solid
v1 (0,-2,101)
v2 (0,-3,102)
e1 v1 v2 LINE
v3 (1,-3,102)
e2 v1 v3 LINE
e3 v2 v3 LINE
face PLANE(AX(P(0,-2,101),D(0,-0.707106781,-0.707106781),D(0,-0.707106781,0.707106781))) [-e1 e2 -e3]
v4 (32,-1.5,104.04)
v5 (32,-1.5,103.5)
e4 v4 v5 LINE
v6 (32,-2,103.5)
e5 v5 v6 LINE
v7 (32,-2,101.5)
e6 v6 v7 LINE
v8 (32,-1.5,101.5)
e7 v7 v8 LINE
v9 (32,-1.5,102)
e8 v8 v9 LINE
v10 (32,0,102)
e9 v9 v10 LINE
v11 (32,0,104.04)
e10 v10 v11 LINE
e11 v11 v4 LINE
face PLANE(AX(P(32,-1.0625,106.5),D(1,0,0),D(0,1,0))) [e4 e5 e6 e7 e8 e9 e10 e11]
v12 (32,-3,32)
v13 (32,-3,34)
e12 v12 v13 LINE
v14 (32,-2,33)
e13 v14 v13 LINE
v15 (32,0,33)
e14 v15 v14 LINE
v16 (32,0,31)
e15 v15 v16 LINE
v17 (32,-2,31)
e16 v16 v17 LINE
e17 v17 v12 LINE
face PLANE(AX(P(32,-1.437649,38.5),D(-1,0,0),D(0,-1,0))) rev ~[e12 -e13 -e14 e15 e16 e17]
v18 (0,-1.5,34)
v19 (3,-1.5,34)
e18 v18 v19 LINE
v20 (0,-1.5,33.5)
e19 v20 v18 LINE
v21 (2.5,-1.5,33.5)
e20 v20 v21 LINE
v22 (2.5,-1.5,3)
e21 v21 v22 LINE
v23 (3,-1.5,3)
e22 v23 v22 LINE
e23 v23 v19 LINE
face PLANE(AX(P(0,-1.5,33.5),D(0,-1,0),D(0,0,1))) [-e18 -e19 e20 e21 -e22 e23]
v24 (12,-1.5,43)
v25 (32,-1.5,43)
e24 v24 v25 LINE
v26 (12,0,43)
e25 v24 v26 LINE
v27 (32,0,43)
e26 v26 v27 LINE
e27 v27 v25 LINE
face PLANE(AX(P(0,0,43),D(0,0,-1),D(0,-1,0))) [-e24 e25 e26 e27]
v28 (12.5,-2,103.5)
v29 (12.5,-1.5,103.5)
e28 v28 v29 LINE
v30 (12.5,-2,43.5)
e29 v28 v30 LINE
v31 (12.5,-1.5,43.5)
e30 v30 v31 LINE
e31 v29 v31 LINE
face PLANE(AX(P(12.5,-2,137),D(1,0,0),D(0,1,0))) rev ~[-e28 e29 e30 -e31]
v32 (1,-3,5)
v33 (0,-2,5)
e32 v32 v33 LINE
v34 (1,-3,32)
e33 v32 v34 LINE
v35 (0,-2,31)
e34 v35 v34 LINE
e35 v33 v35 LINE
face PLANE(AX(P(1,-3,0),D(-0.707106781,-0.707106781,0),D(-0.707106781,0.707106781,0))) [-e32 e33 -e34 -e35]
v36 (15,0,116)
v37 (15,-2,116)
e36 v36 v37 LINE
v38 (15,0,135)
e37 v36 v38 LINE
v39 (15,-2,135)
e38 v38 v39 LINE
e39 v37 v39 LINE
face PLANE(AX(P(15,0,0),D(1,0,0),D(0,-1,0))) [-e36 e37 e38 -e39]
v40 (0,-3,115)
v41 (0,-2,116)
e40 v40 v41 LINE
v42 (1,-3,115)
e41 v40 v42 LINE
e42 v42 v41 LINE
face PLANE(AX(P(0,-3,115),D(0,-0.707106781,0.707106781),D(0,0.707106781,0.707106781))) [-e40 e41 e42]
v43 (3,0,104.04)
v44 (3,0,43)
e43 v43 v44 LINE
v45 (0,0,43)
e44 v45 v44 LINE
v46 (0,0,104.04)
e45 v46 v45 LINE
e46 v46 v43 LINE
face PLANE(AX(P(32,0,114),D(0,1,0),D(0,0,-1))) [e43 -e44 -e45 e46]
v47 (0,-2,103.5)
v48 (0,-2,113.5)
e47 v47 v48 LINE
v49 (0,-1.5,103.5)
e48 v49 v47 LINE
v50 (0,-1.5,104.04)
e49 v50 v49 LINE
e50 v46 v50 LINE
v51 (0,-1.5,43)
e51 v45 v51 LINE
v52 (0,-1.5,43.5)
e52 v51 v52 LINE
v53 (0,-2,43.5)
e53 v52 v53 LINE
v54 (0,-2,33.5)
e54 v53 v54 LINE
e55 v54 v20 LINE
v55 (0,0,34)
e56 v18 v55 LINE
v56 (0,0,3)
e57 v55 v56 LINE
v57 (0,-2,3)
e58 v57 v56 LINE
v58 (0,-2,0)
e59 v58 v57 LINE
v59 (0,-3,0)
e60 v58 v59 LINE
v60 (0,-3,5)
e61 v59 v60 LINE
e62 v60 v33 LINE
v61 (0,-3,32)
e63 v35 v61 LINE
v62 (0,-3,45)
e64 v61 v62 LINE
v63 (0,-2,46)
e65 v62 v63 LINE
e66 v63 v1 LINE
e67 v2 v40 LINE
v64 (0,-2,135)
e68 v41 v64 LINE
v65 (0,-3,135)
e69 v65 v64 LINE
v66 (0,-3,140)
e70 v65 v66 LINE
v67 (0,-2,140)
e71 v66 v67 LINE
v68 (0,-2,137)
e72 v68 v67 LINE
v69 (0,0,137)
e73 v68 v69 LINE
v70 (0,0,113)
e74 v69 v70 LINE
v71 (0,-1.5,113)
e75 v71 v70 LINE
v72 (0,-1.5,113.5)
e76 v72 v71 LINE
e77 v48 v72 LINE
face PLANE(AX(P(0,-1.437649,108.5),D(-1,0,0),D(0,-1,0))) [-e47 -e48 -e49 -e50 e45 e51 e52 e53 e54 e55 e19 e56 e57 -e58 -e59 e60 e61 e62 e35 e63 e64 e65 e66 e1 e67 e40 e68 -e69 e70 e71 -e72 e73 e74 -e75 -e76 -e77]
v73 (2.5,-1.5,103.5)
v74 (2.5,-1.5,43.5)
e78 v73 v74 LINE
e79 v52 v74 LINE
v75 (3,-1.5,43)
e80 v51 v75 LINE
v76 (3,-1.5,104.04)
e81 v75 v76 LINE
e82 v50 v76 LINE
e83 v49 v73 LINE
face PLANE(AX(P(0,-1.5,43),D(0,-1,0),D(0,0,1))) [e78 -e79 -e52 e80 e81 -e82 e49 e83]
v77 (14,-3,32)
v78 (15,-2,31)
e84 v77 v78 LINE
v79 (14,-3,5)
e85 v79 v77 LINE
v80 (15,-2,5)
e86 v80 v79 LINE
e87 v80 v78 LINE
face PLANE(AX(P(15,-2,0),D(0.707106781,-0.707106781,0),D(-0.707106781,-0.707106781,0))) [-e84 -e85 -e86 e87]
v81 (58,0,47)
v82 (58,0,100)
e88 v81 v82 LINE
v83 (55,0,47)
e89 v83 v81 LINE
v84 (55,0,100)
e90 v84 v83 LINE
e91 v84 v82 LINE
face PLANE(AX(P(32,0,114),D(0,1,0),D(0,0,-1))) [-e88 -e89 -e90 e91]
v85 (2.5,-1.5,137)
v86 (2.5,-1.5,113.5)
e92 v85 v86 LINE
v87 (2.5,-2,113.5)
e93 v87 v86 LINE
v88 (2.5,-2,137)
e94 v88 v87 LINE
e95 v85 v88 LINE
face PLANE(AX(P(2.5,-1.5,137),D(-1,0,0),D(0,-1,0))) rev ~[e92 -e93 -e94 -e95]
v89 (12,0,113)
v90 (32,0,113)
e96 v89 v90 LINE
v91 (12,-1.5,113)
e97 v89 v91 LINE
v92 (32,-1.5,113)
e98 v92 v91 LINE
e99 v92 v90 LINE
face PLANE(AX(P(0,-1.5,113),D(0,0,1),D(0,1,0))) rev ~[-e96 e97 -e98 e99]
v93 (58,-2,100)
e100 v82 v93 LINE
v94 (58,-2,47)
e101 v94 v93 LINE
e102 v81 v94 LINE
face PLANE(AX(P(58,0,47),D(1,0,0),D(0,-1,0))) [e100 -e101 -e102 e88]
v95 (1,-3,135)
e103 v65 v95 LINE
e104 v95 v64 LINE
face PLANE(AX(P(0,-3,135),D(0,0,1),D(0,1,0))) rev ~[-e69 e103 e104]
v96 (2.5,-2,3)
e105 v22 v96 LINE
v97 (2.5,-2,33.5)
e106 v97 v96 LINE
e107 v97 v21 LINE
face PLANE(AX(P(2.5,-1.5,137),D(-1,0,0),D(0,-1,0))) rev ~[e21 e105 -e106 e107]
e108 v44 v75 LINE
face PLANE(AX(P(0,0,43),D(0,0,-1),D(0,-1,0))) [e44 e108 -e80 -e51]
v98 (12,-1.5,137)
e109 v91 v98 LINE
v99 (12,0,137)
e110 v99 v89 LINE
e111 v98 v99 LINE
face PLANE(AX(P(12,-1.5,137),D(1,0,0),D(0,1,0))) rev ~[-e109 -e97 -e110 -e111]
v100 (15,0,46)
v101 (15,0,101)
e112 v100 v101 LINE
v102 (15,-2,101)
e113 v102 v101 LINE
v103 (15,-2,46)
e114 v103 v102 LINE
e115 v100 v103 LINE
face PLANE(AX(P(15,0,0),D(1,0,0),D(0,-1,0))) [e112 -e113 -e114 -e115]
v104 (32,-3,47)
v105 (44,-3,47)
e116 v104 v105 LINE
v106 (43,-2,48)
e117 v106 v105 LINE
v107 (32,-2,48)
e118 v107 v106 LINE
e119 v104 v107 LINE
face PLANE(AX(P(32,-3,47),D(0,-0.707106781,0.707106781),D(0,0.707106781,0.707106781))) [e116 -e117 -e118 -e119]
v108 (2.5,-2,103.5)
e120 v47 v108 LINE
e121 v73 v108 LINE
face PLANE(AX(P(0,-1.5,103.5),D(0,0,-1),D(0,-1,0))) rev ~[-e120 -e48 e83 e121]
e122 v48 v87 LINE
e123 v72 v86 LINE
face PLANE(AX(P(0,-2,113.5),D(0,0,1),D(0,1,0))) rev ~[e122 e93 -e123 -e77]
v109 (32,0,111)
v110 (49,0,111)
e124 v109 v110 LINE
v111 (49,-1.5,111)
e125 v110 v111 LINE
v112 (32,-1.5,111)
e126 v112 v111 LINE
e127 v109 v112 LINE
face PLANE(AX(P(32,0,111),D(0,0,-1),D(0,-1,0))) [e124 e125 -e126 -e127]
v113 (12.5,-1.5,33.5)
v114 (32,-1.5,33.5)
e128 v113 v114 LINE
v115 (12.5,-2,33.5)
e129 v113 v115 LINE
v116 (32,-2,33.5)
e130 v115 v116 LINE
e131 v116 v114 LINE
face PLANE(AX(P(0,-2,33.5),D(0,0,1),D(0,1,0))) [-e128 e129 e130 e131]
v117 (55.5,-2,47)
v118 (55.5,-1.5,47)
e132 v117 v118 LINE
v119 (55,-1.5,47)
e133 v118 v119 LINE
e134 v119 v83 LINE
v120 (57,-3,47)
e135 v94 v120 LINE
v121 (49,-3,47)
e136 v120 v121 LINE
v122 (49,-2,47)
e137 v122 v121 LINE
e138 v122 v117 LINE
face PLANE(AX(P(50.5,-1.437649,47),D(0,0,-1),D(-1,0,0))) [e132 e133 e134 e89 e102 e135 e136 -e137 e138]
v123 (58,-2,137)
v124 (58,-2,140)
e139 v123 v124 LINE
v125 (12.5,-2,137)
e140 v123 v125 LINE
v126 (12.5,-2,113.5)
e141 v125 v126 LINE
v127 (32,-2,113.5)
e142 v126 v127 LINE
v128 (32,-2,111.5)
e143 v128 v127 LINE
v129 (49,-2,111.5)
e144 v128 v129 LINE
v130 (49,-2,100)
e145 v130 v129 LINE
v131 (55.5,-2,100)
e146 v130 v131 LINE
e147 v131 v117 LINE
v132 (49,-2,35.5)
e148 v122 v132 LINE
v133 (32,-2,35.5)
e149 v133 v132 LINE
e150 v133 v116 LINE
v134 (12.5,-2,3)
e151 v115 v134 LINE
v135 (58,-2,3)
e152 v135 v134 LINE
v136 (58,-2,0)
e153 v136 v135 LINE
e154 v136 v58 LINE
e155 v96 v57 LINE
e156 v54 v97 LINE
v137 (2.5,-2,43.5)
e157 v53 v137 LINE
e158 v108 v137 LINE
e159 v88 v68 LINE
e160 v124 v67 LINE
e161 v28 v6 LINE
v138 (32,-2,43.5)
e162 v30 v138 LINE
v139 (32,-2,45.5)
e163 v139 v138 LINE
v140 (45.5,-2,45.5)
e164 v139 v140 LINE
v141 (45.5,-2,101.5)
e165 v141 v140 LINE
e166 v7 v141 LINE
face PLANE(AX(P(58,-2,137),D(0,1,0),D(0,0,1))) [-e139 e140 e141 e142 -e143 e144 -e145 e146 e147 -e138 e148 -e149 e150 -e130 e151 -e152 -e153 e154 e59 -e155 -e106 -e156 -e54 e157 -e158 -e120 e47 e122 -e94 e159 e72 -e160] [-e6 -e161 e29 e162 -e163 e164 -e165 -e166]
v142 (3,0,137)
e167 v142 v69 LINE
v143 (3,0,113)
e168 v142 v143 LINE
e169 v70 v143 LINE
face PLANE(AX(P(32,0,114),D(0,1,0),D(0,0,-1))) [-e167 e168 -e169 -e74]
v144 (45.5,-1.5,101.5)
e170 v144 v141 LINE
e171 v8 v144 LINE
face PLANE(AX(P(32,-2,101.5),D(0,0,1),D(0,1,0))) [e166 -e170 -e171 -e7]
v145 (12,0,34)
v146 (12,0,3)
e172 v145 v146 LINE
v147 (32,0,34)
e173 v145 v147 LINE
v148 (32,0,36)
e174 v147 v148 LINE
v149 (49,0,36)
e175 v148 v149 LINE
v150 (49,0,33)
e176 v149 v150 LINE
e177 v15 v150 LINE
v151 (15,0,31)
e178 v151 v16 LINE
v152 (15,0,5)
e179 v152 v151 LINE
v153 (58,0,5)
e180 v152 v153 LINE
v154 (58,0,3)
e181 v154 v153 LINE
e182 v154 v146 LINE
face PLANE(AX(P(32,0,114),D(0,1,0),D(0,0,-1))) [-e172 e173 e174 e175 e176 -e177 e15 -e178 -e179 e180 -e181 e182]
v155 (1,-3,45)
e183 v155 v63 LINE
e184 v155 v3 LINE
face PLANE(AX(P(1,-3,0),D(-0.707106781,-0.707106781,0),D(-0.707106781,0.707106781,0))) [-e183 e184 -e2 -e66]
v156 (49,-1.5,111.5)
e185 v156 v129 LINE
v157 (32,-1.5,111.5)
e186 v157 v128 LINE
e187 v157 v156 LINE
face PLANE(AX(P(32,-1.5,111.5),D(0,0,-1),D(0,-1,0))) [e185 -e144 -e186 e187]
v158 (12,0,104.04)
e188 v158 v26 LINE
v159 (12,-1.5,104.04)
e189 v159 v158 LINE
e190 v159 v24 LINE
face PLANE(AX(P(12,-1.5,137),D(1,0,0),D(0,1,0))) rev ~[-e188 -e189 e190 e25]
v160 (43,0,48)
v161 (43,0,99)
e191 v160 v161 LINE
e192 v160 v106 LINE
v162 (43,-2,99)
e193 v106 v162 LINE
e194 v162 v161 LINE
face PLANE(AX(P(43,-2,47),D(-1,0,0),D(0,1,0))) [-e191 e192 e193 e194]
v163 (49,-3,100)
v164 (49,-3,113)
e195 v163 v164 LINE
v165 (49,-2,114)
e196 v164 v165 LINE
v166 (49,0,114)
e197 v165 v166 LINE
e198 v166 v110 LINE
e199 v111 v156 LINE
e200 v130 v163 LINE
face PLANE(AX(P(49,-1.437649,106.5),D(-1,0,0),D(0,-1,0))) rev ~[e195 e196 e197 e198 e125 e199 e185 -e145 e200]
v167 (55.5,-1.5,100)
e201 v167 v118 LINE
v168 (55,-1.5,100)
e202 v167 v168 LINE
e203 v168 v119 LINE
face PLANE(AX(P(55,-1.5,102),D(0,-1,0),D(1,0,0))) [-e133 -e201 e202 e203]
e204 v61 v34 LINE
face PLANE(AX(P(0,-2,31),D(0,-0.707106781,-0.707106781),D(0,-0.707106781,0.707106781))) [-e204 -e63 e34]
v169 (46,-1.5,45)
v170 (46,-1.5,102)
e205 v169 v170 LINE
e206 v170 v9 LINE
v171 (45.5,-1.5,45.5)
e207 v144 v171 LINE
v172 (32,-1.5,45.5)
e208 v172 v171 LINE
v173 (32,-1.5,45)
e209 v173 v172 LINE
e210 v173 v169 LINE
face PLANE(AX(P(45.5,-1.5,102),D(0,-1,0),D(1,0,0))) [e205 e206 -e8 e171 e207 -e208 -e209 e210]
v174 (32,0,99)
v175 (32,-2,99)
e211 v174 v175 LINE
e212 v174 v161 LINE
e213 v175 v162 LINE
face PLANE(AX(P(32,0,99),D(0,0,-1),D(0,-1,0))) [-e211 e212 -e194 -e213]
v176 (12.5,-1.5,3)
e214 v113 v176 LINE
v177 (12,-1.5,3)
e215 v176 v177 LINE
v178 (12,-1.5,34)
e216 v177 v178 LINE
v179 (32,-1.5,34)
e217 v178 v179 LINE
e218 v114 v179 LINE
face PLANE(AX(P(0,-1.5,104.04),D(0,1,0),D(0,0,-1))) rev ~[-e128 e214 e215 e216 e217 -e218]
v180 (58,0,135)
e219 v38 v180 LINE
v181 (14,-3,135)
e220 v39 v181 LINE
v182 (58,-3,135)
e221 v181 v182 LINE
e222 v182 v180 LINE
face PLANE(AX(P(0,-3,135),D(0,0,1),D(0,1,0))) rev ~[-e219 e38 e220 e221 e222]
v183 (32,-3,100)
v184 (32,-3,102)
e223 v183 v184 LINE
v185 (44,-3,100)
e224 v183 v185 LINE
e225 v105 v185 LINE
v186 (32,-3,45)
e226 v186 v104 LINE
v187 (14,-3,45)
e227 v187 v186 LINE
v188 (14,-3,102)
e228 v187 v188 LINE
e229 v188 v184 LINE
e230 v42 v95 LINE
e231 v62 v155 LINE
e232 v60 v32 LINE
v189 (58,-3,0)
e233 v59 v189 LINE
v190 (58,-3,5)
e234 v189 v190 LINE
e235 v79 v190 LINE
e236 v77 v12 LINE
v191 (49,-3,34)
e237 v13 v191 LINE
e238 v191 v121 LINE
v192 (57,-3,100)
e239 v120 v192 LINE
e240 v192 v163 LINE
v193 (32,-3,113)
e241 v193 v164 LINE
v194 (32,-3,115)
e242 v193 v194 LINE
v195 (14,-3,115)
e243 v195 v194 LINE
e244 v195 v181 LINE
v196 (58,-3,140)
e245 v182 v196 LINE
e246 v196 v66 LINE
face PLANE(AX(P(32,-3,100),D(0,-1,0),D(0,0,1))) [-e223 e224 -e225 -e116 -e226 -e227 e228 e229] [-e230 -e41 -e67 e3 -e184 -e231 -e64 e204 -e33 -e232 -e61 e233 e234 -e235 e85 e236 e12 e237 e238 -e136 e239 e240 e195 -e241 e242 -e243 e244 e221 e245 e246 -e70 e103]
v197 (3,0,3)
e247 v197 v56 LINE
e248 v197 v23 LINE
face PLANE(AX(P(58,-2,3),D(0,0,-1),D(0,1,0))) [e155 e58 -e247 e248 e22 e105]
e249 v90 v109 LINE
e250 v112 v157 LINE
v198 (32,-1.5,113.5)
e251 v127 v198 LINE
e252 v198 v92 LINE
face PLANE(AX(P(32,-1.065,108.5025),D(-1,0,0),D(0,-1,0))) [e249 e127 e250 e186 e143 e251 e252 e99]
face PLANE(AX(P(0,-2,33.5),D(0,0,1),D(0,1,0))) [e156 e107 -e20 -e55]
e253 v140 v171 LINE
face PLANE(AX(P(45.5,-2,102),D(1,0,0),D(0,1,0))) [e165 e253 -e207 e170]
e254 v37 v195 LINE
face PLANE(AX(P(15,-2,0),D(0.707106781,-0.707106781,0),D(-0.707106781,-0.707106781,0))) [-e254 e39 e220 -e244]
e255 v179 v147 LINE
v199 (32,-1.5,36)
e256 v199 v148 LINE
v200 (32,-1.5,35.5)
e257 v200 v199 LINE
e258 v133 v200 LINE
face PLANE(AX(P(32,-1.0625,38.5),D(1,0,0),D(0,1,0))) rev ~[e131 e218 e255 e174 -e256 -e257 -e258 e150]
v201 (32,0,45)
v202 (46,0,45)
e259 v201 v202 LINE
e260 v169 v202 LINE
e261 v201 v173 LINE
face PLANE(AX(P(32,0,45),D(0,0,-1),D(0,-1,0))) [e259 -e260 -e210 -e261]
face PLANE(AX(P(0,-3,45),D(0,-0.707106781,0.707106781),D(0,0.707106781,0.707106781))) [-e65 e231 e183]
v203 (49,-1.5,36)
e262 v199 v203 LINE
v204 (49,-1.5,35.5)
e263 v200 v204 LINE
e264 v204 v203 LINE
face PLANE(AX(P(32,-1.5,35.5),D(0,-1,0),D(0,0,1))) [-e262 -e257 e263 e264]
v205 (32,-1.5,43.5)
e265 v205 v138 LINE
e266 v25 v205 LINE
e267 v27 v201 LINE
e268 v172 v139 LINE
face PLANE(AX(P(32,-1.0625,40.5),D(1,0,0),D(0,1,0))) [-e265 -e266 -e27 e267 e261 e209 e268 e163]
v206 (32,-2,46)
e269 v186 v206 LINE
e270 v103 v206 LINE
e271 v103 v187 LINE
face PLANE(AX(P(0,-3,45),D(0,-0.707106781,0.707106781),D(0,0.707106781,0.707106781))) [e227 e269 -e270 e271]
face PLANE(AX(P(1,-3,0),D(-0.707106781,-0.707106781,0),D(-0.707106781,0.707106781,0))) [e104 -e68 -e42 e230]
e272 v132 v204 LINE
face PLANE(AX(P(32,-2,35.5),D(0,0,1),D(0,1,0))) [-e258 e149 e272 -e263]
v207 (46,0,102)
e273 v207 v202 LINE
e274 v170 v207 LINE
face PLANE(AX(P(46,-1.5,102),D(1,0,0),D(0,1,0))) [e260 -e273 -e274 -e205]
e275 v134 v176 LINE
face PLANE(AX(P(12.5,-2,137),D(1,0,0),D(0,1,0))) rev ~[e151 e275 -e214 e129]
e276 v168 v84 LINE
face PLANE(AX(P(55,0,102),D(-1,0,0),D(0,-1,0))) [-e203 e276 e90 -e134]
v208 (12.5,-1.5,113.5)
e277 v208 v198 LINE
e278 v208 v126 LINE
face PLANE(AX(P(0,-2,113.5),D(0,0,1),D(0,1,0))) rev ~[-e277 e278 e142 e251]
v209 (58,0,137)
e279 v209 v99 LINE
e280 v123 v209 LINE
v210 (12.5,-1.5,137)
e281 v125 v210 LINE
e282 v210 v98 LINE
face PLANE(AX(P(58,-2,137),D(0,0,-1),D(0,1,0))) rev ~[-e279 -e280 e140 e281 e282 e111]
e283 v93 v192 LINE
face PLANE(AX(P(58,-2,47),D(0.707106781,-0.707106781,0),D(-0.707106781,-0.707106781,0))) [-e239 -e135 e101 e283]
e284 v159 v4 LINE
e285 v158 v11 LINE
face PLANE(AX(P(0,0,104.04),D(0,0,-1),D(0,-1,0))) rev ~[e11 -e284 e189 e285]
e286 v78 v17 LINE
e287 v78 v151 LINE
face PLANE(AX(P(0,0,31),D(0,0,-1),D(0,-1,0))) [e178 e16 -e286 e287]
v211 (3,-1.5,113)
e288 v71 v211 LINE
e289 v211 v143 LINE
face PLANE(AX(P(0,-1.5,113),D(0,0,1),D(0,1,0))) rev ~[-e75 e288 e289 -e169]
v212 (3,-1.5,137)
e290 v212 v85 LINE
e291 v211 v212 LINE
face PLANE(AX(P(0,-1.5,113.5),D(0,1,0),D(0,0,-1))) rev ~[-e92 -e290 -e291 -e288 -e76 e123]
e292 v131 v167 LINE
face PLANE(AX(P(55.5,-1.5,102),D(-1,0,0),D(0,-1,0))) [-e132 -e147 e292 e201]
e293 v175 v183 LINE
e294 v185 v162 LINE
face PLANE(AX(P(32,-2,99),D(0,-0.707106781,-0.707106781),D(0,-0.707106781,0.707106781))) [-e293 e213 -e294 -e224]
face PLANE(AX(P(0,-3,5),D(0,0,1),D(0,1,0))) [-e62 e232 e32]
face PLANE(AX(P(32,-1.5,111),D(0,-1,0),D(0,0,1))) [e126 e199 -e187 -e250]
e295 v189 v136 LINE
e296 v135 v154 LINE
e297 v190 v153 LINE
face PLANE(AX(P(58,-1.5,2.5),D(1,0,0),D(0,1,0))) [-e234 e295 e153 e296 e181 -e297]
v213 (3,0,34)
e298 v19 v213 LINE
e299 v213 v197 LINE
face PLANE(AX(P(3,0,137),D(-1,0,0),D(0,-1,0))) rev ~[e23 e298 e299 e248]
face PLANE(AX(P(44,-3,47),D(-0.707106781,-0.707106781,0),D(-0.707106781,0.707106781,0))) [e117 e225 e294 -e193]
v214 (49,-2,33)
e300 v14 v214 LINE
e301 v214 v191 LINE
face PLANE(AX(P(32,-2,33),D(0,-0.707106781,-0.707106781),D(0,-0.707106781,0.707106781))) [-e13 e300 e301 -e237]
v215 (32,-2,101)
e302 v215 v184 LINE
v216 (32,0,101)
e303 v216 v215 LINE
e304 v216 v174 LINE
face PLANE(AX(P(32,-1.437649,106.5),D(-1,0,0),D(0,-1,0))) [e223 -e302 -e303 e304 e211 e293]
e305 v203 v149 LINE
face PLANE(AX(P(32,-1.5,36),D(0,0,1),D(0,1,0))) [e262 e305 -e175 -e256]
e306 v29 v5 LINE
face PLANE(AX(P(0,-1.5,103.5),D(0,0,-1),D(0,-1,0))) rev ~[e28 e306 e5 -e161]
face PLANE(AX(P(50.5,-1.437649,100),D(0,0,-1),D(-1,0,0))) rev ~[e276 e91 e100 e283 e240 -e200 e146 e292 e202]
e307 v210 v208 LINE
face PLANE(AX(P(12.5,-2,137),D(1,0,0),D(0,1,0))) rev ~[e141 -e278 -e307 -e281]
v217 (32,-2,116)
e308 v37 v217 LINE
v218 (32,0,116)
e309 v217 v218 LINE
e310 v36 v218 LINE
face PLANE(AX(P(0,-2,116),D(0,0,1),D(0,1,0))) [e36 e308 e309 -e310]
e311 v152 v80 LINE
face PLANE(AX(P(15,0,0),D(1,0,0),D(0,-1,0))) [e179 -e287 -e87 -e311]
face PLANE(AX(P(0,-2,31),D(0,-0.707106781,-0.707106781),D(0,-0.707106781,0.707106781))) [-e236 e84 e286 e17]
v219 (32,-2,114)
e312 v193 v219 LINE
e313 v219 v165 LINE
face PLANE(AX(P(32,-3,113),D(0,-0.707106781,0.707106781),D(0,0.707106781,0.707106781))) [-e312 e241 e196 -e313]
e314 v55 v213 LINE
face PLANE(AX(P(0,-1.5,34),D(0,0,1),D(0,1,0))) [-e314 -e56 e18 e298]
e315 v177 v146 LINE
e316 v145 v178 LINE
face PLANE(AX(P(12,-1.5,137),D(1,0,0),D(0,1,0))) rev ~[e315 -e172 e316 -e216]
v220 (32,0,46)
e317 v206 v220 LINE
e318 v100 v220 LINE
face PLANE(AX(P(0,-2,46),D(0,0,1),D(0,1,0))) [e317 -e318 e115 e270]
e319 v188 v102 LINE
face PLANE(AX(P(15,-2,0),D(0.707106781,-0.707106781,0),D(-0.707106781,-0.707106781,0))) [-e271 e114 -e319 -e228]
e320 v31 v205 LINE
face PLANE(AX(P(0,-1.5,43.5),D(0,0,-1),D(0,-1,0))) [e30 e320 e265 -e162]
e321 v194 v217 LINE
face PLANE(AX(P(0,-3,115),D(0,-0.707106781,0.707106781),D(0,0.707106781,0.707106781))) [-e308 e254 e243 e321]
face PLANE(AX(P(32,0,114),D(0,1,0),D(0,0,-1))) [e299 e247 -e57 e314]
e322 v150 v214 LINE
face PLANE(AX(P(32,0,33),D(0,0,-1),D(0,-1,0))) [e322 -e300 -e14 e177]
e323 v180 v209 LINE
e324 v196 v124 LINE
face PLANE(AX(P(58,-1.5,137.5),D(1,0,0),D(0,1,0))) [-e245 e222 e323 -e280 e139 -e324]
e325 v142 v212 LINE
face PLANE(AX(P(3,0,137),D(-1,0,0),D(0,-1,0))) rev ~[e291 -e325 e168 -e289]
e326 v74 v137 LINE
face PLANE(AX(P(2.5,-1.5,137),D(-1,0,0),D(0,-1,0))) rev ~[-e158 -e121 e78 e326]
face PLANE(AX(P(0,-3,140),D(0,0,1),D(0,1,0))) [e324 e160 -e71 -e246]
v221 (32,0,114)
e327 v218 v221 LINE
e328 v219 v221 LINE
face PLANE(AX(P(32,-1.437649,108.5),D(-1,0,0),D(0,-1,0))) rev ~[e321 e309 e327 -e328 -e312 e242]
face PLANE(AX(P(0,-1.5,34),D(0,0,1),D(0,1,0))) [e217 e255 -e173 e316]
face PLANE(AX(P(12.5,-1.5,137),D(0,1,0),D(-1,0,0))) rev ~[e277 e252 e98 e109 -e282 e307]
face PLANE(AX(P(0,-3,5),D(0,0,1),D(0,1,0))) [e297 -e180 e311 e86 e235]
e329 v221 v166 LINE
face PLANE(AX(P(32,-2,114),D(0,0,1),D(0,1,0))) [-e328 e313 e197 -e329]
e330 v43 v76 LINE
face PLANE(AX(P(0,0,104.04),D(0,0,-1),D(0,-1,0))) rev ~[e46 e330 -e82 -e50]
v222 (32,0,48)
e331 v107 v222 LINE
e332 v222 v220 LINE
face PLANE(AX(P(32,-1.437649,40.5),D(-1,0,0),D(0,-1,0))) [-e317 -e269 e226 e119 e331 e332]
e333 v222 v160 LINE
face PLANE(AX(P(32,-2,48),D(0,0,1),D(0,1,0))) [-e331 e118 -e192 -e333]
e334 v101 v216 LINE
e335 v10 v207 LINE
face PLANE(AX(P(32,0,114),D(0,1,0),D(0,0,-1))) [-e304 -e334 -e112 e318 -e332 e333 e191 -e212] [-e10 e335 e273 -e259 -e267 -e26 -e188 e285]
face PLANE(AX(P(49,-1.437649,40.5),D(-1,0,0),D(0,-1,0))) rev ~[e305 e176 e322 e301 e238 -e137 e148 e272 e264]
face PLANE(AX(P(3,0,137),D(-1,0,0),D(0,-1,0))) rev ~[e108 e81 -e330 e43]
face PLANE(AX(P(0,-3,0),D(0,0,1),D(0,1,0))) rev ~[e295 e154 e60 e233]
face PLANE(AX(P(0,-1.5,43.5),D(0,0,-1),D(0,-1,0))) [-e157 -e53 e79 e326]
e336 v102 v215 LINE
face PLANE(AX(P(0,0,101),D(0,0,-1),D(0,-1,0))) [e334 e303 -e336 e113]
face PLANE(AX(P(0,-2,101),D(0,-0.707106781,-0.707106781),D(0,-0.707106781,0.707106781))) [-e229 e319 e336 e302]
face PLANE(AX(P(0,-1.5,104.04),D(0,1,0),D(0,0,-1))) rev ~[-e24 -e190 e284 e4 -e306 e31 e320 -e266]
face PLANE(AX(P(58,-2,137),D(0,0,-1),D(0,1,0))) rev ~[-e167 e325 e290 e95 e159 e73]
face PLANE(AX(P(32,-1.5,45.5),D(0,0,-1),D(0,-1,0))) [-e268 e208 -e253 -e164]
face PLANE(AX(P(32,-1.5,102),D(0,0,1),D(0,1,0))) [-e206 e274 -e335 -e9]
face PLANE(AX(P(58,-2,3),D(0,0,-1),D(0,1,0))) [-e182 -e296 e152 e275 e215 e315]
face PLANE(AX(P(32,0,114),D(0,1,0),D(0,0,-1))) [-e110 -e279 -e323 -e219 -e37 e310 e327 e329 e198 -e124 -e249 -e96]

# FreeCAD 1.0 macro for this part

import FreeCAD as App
import Part
import Sketcher

V = App.Vector

doc = App.newDocument("Part")
body = doc.addObject("PartDesign::Body", "Body")

# Sketch on XY plane
sketch1 = body.newObject("Sketcher::SketchObject", "Sketch")
sketch1.AttachmentSupport = (doc.getObject("XY_Plane"), [""])
sketch1.MapMode = "FlatFace"
sketch1.addGeometry([
    Part.LineSegment(V(15, 0, 0), V(0, 0, 0)),  # 0
    Part.LineSegment(V(0, 0, 0), V(0, -2, 0)),  # 1
    Part.LineSegment(V(0, -2, 0), V(1, -3, 0)),  # 2
    Part.LineSegment(V(1, -3, 0), V(14, -3, 0)),  # 3
    Part.LineSegment(V(14, -3, 0), V(15, -2, 0)),  # 4
    Part.LineSegment(V(15, -2, 0), V(15, 0, 0)),  # 5
], False)
sketch1.addConstraint([
    Sketcher.Constraint("Coincident", 0, 2, 1, 1),
    Sketcher.Constraint("Coincident", 1, 2, 2, 1),
    Sketcher.Constraint("Coincident", 2, 2, 3, 1),
    Sketcher.Constraint("Coincident", 3, 2, 4, 1),
    Sketcher.Constraint("Coincident", 4, 2, 5, 1),
    Sketcher.Constraint("Coincident", 5, 2, 0, 1),
    Sketcher.Constraint("Horizontal", 0),
    Sketcher.Constraint("Vertical", 1),
    Sketcher.Constraint("Horizontal", 3),
    Sketcher.Constraint("Vertical", 5),
    Sketcher.Constraint("Coincident", 0, 2, -1, 1),
    Sketcher.Constraint("Perpendicular", 2, 4),
    Sketcher.Constraint("Horizontal", 1, 2, 4, 2),
    Sketcher.Constraint("Equal", 2, 4),
    Sketcher.Constraint("DistanceX", 0, 2, 0, 1, 15.0),
    Sketcher.Constraint("DistanceX", 3, 1, 3, 2, 13.0),
    Sketcher.Constraint("DistanceY", 1, 2, 1, 1, 2.0),
])
pad1 = body.newObject("PartDesign::Pad", "Pad")
pad1.Profile = sketch1
pad1.Length = 140

# Sketch on YZ plane
sketch2 = body.newObject("Sketcher::SketchObject", "Sketch001")
sketch2.AttachmentSupport = (doc.getObject("YZ_Plane"), [""])
sketch2.MapMode = "FlatFace"
sketch2.addGeometry([
    Part.LineSegment(V(-3, 140, 0), V(-3, 135, 0)),
    Part.LineSegment(V(-3, 135, 0), V(0, 135, 0)),
    Part.LineSegment(V(0, 135, 0), V(0, 140, 0)),
    Part.LineSegment(V(0, 140, 0), V(-3, 140, 0)),
], False)
sketch2.addConstraint([
    Sketcher.Constraint("Coincident", 0, 2, 1, 1),
    Sketcher.Constraint("Coincident", 1, 2, 2, 1),
    Sketcher.Constraint("Coincident", 2, 2, 3, 1),
    Sketcher.Constraint("Coincident", 3, 2, 0, 1),
    Sketcher.Constraint("Vertical", 0),
    Sketcher.Constraint("Horizontal", 1),
    Sketcher.Constraint("Vertical", 2),
    Sketcher.Constraint("Horizontal", 3),
    Sketcher.Constraint("PointOnObject", 1, 2, -2),
    Sketcher.Constraint("DistanceX", 1, 1, 1, 2, 3.0),
    Sketcher.Constraint("DistanceY", 0, 2, 0, 1, 5.0),
    Sketcher.Constraint("DistanceY", -1, 1, 0, 2, 135.0),
])
pad2 = body.newObject("PartDesign::Pad", "Pad001")
pad2.Profile = sketch2
pad2.Length = 58

# Sketch on YZ plane
sketch3 = body.newObject("Sketcher::SketchObject", "Sketch002")
sketch3.AttachmentSupport = (doc.getObject("YZ_Plane"), [""])
sketch3.MapMode = "FlatFace"
sketch3.AttachmentOffset = App.Placement(V(0, 0, 58), App.Rotation())
sketch3.addGeometry([
    Part.LineSegment(V(-2, 140, 0), V(-2, 137, 0)),
    Part.LineSegment(V(-2, 137, 0), V(0, 137, 0)),
    Part.LineSegment(V(0, 137, 0), V(0, 140, 0)),
    Part.LineSegment(V(0, 140, 0), V(-2, 140, 0)),
], False)
sketch3.addConstraint([
    Sketcher.Constraint("Coincident", 0, 2, 1, 1),
    Sketcher.Constraint("Coincident", 1, 2, 2, 1),
    Sketcher.Constraint("Coincident", 2, 2, 3, 1),
    Sketcher.Constraint("Coincident", 3, 2, 0, 1),
    Sketcher.Constraint("Vertical", 0),
    Sketcher.Constraint("Horizontal", 1),
    Sketcher.Constraint("Vertical", 2),
    Sketcher.Constraint("Horizontal", 3),
    Sketcher.Constraint("PointOnObject", 1, 2, -2),
    Sketcher.Constraint("DistanceX", 1, 1, 1, 2, 2.0),
    Sketcher.Constraint("DistanceY", 0, 2, 0, 1, 3.0),
    Sketcher.Constraint("DistanceY", -1, 1, 0, 2, 137.0),
])
pocket1 = body.newObject("PartDesign::Pocket", "Pocket")
pocket1.Profile = sketch3
pocket1.Length = 58

# Sketch on YZ plane
sketch4 = body.newObject("Sketcher::SketchObject", "Sketch003")
sketch4.AttachmentSupport = (doc.getObject("YZ_Plane"), [""])
sketch4.MapMode = "FlatFace"
sketch4.addGeometry([
    Part.LineSegment(V(-3, 5, 0), V(-3, 0, 0)),
    Part.LineSegment(V(-3, 0, 0), V(0, 0, 0)),
    Part.LineSegment(V(0, 0, 0), V(0, 5, 0)),
    Part.LineSegment(V(0, 5, 0), V(-3, 5, 0)),
], False)
sketch4.addConstraint([
    Sketcher.Constraint("Coincident", 0, 2, 1, 1),
    Sketcher.Constraint("Coincident", 1, 2, 2, 1),
    Sketcher.Constraint("Coincident", 2, 2, 3, 1),
    Sketcher.Constraint("Coincident", 3, 2, 0, 1),
    Sketcher.Constraint("Vertical", 0),
    Sketcher.Constraint("Horizontal", 1),
    Sketcher.Constraint("Vertical", 2),
    Sketcher.Constraint("Horizontal", 3),
    Sketcher.Constraint("Coincident", 1, 2, -1, 1),
    Sketcher.Constraint("DistanceX", 1, 1, 1, 2, 3.0),
    Sketcher.Constraint("DistanceY", 0, 2, 0, 1, 5.0),
])
pad3 = body.newObject("PartDesign::Pad", "Pad002")
pad3.Profile = sketch4
pad3.Length = 58

# Sketch on YZ plane
sketch5 = body.newObject("Sketcher::SketchObject", "Sketch004")
sketch5.AttachmentSupport = (doc.getObject("YZ_Plane"), [""])
sketch5.MapMode = "FlatFace"
sketch5.AttachmentOffset = App.Placement(V(0, 0, 58), App.Rotation())
sketch5.addGeometry([
    Part.LineSegment(V(-2, 3, 0), V(-2, 0, 0)),
    Part.LineSegment(V(-2, 0, 0), V(0, 0, 0)),
    Part.LineSegment(V(0, 0, 0), V(0, 3, 0)),
    Part.LineSegment(V(0, 3, 0), V(-2, 3, 0)),
], False)
sketch5.addConstraint([
    Sketcher.Constraint("Coincident", 0, 2, 1, 1),
    Sketcher.Constraint("Coincident", 1, 2, 2, 1),
    Sketcher.Constraint("Coincident", 2, 2, 3, 1),
    Sketcher.Constraint("Coincident", 3, 2, 0, 1),
    Sketcher.Constraint("Vertical", 0),
    Sketcher.Constraint("Horizontal", 1),
    Sketcher.Constraint("Vertical", 2),
    Sketcher.Constraint("Horizontal", 3),
    Sketcher.Constraint("Coincident", 1, 2, -1, 1),
    Sketcher.Constraint("DistanceX", 1, 1, 1, 2, 2.0),
    Sketcher.Constraint("DistanceY", 0, 2, 0, 1, 3.0),
])
pocket2 = body.newObject("PartDesign::Pocket", "Pocket001")
pocket2.Profile = sketch5
pocket2.Length = 58

# Sketch on YZ plane
sketch6 = body.newObject("Sketcher::SketchObject", "Sketch005")
sketch6.AttachmentSupport = (doc.getObject("YZ_Plane"), [""])
sketch6.MapMode = "FlatFace"
sketch6.addGeometry([
    Part.LineSegment(V(-2, 31, 0), V(0, 31, 0)),  # 0
    Part.LineSegment(V(0, 31, 0), V(0, 46, 0)),  # 1
    Part.LineSegment(V(0, 46, 0), V(-2, 46, 0)),  # 2
    Part.LineSegment(V(-2, 46, 0), V(-3, 45, 0)),  # 3
    Part.LineSegment(V(-3, 45, 0), V(-3, 32, 0)),  # 4
    Part.LineSegment(V(-3, 32, 0), V(-2, 31, 0)),  # 5
], False)
sketch6.addConstraint([
    Sketcher.Constraint("Coincident", 0, 2, 1, 1),
    Sketcher.Constraint("Coincident", 1, 2, 2, 1),
    Sketcher.Constraint("Coincident", 2, 2, 3, 1),
    Sketcher.Constraint("Coincident", 3, 2, 4, 1),
    Sketcher.Constraint("Coincident", 4, 2, 5, 1),
    Sketcher.Constraint("Coincident", 5, 2, 0, 1),
    Sketcher.Constraint("Horizontal", 0),
    Sketcher.Constraint("Vertical", 1),
    Sketcher.Constraint("Horizontal", 2),
    Sketcher.Constraint("Vertical", 4),
    Sketcher.Constraint("PointOnObject", 0, 2, -2),
    Sketcher.Constraint("Perpendicular", 3, 5),
    Sketcher.Constraint("Vertical", 2, 2, 5, 2),
    Sketcher.Constraint("Equal", 3, 5),
    Sketcher.Constraint("DistanceX", 0, 1, 0, 2, 2.0),
    Sketcher.Constraint("DistanceY", 1, 1, 1, 2, 15.0),
    Sketcher.Constraint("DistanceY", 4, 2, 4, 1, 13.0),
    Sketcher.Constraint("DistanceY", -1, 1, 0, 2, 31.0),
])
pad4 = body.newObject("PartDesign::Pad", "Pad003")
pad4.Profile = sketch6
pad4.Length = 32

# Sketch on YZ plane
sketch7 = body.newObject("Sketcher::SketchObject", "Sketch006")
sketch7.AttachmentSupport = (doc.getObject("YZ_Plane"), [""])
sketch7.MapMode = "FlatFace"
sketch7.addGeometry([
    Part.LineSegment(V(0, 101, 0), V(0, 116, 0)),  # 0
    Part.LineSegment(V(0, 116, 0), V(-2, 116, 0)),  # 1
    Part.LineSegment(V(-2, 116, 0), V(-3, 115, 0)),  # 2
    Part.LineSegment(V(-3, 115, 0), V(-3, 102, 0)),  # 3
    Part.LineSegment(V(-3, 102, 0), V(-2, 101, 0)),  # 4
    Part.LineSegment(V(-2, 101, 0), V(0, 101, 0)),  # 5
], False)
sketch7.addConstraint([
    Sketcher.Constraint("Coincident", 0, 2, 1, 1),
    Sketcher.Constraint("Coincident", 1, 2, 2, 1),
    Sketcher.Constraint("Coincident", 2, 2, 3, 1),
    Sketcher.Constraint("Coincident", 3, 2, 4, 1),
    Sketcher.Constraint("Coincident", 4, 2, 5, 1),
    Sketcher.Constraint("Coincident", 5, 2, 0, 1),
    Sketcher.Constraint("Vertical", 0),
    Sketcher.Constraint("Horizontal", 1),
    Sketcher.Constraint("Vertical", 3),
    Sketcher.Constraint("Horizontal", 5),
    Sketcher.Constraint("PointOnObject", 0, 2, -2),
    Sketcher.Constraint("Perpendicular", 2, 4),
    Sketcher.Constraint("Vertical", 1, 2, 4, 2),
    Sketcher.Constraint("Equal", 2, 4),
    Sketcher.Constraint("DistanceX", 1, 2, 1, 1, 2.0),
    Sketcher.Constraint("DistanceY", 0, 1, 0, 2, 15.0),
    Sketcher.Constraint("DistanceY", 3, 2, 3, 1, 13.0),
    Sketcher.Constraint("DistanceY", -1, 1, 0, 2, 116.0),
])
pad5 = body.newObject("PartDesign::Pad", "Pad004")
pad5.Profile = sketch7
pad5.Length = 32

# Sketch on YZ plane
sketch8 = body.newObject("Sketcher::SketchObject", "Sketch007")
sketch8.AttachmentSupport = (doc.getObject("YZ_Plane"), [""])
sketch8.MapMode = "FlatFace"
sketch8.AttachmentOffset = App.Placement(V(0, 0, 32), App.Rotation())
sketch8.addGeometry([
    Part.LineSegment(V(0, 33, 0), V(0, 48, 0)),  # 0
    Part.LineSegment(V(0, 48, 0), V(-2, 48, 0)),  # 1
    Part.LineSegment(V(-2, 48, 0), V(-3, 47, 0)),  # 2
    Part.LineSegment(V(-3, 47, 0), V(-3, 34, 0)),  # 3
    Part.LineSegment(V(-3, 34, 0), V(-2, 33, 0)),  # 4
    Part.LineSegment(V(-2, 33, 0), V(0, 33, 0)),  # 5
], False)
sketch8.addConstraint([
    Sketcher.Constraint("Coincident", 0, 2, 1, 1),
    Sketcher.Constraint("Coincident", 1, 2, 2, 1),
    Sketcher.Constraint("Coincident", 2, 2, 3, 1),
    Sketcher.Constraint("Coincident", 3, 2, 4, 1),
    Sketcher.Constraint("Coincident", 4, 2, 5, 1),
    Sketcher.Constraint("Coincident", 5, 2, 0, 1),
    Sketcher.Constraint("Vertical", 0),
    Sketcher.Constraint("Horizontal", 1),
    Sketcher.Constraint("Vertical", 3),
    Sketcher.Constraint("Horizontal", 5),
    Sketcher.Constraint("PointOnObject", 0, 2, -2),
    Sketcher.Constraint("Perpendicular", 2, 4),
    Sketcher.Constraint("Vertical", 1, 2, 4, 2),
    Sketcher.Constraint("Equal", 2, 4),
    Sketcher.Constraint("DistanceX", 1, 2, 1, 1, 2.0),
    Sketcher.Constraint("DistanceY", 0, 1, 0, 2, 15.0),
    Sketcher.Constraint("DistanceY", 3, 2, 3, 1, 13.0),
    Sketcher.Constraint("DistanceY", -1, 1, 0, 2, 48.0),
])
pad6 = body.newObject("PartDesign::Pad", "Pad005")
pad6.Profile = sketch8
pad6.Length = 17

# Sketch on YZ plane
sketch9 = body.newObject("Sketcher::SketchObject", "Sketch008")
sketch9.AttachmentSupport = (doc.getObject("YZ_Plane"), [""])
sketch9.MapMode = "FlatFace"
sketch9.AttachmentOffset = App.Placement(V(0, 0, 32), App.Rotation())
sketch9.addGeometry([
    Part.LineSegment(V(0, 114, 0), V(-2, 114, 0)),  # 0
    Part.LineSegment(V(-2, 114, 0), V(-3, 113, 0)),  # 1
    Part.LineSegment(V(-3, 113, 0), V(-3, 100, 0)),  # 2
    Part.LineSegment(V(-3, 100, 0), V(-2, 99, 0)),  # 3
    Part.LineSegment(V(-2, 99, 0), V(0, 99, 0)),  # 4
    Part.LineSegment(V(0, 99, 0), V(0, 114, 0)),  # 5
], False)
sketch9.addConstraint([
    Sketcher.Constraint("Coincident", 0, 2, 1, 1),
    Sketcher.Constraint("Coincident", 1, 2, 2, 1),
    Sketcher.Constraint("Coincident", 2, 2, 3, 1),
    Sketcher.Constraint("Coincident", 3, 2, 4, 1),
    Sketcher.Constraint("Coincident", 4, 2, 5, 1),
    Sketcher.Constraint("Coincident", 5, 2, 0, 1),
    Sketcher.Constraint("Horizontal", 0),
    Sketcher.Constraint("Vertical", 2),
    Sketcher.Constraint("Horizontal", 4),
    Sketcher.Constraint("Vertical", 5),
    Sketcher.Constraint("PointOnObject", 4, 2, -2),
    Sketcher.Constraint("Perpendicular", 1, 3),
    Sketcher.Constraint("Vertical", 0, 2, 3, 2),
    Sketcher.Constraint("Equal", 1, 3),
    Sketcher.Constraint("DistanceX", 0, 2, 0, 1, 2.0),
    Sketcher.Constraint("DistanceY", 2, 2, 2, 1, 13.0),
    Sketcher.Constraint("DistanceY", 5, 1, 5, 2, 15.0),
    Sketcher.Constraint("DistanceY", -1, 1, 0, 2, 114.0),
])
pad7 = body.newObject("PartDesign::Pad", "Pad006")
pad7.Profile = sketch9
pad7.Length = 17

# Sketch on XY plane
sketch10 = body.newObject("Sketcher::SketchObject", "Sketch009")
sketch10.AttachmentSupport = (doc.getObject("XY_Plane"), [""])
sketch10.MapMode = "FlatFace"
sketch10.AttachmentOffset = App.Placement(V(0, 0, 47), App.Rotation())
sketch10.addGeometry([
    Part.LineSegment(V(58, 0, 0), V(43, 0, 0)),  # 0
    Part.LineSegment(V(43, 0, 0), V(43, -2, 0)),  # 1
    Part.LineSegment(V(43, -2, 0), V(44, -3, 0)),  # 2
    Part.LineSegment(V(44, -3, 0), V(57, -3, 0)),  # 3
    Part.LineSegment(V(57, -3, 0), V(58, -2, 0)),  # 4
    Part.LineSegment(V(58, -2, 0), V(58, 0, 0)),  # 5
], False)
sketch10.addConstraint([
    Sketcher.Constraint("Coincident", 0, 2, 1, 1),
    Sketcher.Constraint("Coincident", 1, 2, 2, 1),
    Sketcher.Constraint("Coincident", 2, 2, 3, 1),
    Sketcher.Constraint("Coincident", 3, 2, 4, 1),
    Sketcher.Constraint("Coincident", 4, 2, 5, 1),
    Sketcher.Constraint("Coincident", 5, 2, 0, 1),
    Sketcher.Constraint("Horizontal", 0),
    Sketcher.Constraint("Vertical", 1),
    Sketcher.Constraint("Horizontal", 3),
    Sketcher.Constraint("Vertical", 5),
    Sketcher.Constraint("PointOnObject", 0, 2, -1),
    Sketcher.Constraint("Perpendicular", 2, 4),
    Sketcher.Constraint("Horizontal", 1, 2, 4, 2),
    Sketcher.Constraint("Equal", 2, 4),
    Sketcher.Constraint("DistanceX", 0, 2, 0, 1, 15.0),
    Sketcher.Constraint("DistanceX", 3, 1, 3, 2, 13.0),
    Sketcher.Constraint("DistanceY", 1, 2, 1, 1, 2.0),
    Sketcher.Constraint("DistanceX", -1, 1, 0, 2, 43.0),
])
pad8 = body.newObject("PartDesign::Pad", "Pad007")
pad8.Profile = sketch10
pad8.Length = 53

# Sketch on XY plane
sketch11 = body.newObject("Sketcher::SketchObject", "Sketch010")
sketch11.AttachmentSupport = (doc.getObject("XY_Plane"), [""])
sketch11.MapMode = "FlatFace"
sketch11.AttachmentOffset = App.Placement(V(0, 0, 137), App.Rotation())
sketch11.addGeometry([
    Part.LineSegment(V(2.5, -2, 0), V(12.5, -2, 0)),  # 0
    Part.LineSegment(V(12.5, -2, 0), V(12.5, -1.5, 0)),  # 1
    Part.LineSegment(V(12.5, -1.5, 0), V(12, -1.5, 0)),  # 2
    Part.LineSegment(V(12, -1.5, 0), V(12, 0, 0)),  # 3
    Part.LineSegment(V(12, 0, 0), V(3, 0, 0)),  # 4
    Part.LineSegment(V(3, 0, 0), V(3, -1.5, 0)),  # 5
    Part.LineSegment(V(3, -1.5, 0), V(2.5, -1.5, 0)),  # 6
    Part.LineSegment(V(2.5, -1.5, 0), V(2.5, -2, 0)),  # 7
], False)
sketch11.addConstraint([
    Sketcher.Constraint("Coincident", 0, 2, 1, 1),
    Sketcher.Constraint("Coincident", 1, 2, 2, 1),
    Sketcher.Constraint("Coincident", 2, 2, 3, 1),
    Sketcher.Constraint("Coincident", 3, 2, 4, 1),
    Sketcher.Constraint("Coincident", 4, 2, 5, 1),
    Sketcher.Constraint("Coincident", 5, 2, 6, 1),
    Sketcher.Constraint("Coincident", 6, 2, 7, 1),
    Sketcher.Constraint("Coincident", 7, 2, 0, 1),
    Sketcher.Constraint("Horizontal", 0),
    Sketcher.Constraint("Vertical", 1),
    Sketcher.Constraint("Horizontal", 2),
    Sketcher.Constraint("Vertical", 3),
    Sketcher.Constraint("Horizontal", 4),
    Sketcher.Constraint("Vertical", 5),
    Sketcher.Constraint("Horizontal", 6),
    Sketcher.Constraint("Vertical", 7),
    Sketcher.Constraint("PointOnObject", 3, 2, -1),
    Sketcher.Constraint("Horizontal", 2, 2, 5, 2),
    Sketcher.Constraint("Equal", 2, 6),
    Sketcher.Constraint("Equal", 6, 1),
    Sketcher.Constraint("DistanceX", 0, 1, 0, 2, 10.0),
    Sketcher.Constraint("DistanceX", 4, 2, 4, 1, 9.0),
    Sketcher.Constraint("DistanceY", 3, 1, 3, 2, 1.5),
    Sketcher.Constraint("DistanceX", -1, 1, 2, 2, 12.0),
])
pocket3 = body.newObject("PartDesign::Pocket", "Pocket002")
pocket3.Profile = sketch11
pocket3.Length = 134

# Sketch on XY plane
sketch12 = body.newObject("Sketcher::SketchObject", "Sketch011")
sketch12.AttachmentSupport = (doc.getObject("XY_Plane"), [""])
sketch12.MapMode = "FlatFace"
sketch12.AttachmentOffset = App.Placement(V(0, 0, 102), App.Rotation())
sketch12.addGeometry([
    Part.LineSegment(V(45.5, -2, 0), V(55.5, -2, 0)),  # 0
    Part.LineSegment(V(55.5, -2, 0), V(55.5, -1.5, 0)),  # 1
    Part.LineSegment(V(55.5, -1.5, 0), V(55, -1.5, 0)),  # 2
    Part.LineSegment(V(55, -1.5, 0), V(55, 0, 0)),  # 3
    Part.LineSegment(V(55, 0, 0), V(46, 0, 0)),  # 4
    Part.LineSegment(V(46, 0, 0), V(46, -1.5, 0)),  # 5
    Part.LineSegment(V(46, -1.5, 0), V(45.5, -1.5, 0)),  # 6
    Part.LineSegment(V(45.5, -1.5, 0), V(45.5, -2, 0)),  # 7
], False)
sketch12.addConstraint([
    Sketcher.Constraint("Coincident", 0, 2, 1, 1),
    Sketcher.Constraint("Coincident", 1, 2, 2, 1),
    Sketcher.Constraint("Coincident", 2, 2, 3, 1),
    Sketcher.Constraint("Coincident", 3, 2, 4, 1),
    Sketcher.Constraint("Coincident", 4, 2, 5, 1),
    Sketcher.Constraint("Coincident", 5, 2, 6, 1),
    Sketcher.Constraint("Coincident", 6, 2, 7, 1),
    Sketcher.Constraint("Coincident", 7, 2, 0, 1),
    Sketcher.Constraint("Horizontal", 0),
    Sketcher.Constraint("Vertical", 1),
    Sketcher.Constraint("Horizontal", 2),
    Sketcher.Constraint("Vertical", 3),
    Sketcher.Constraint("Horizontal", 4),
    Sketcher.Constraint("Vertical", 5),
    Sketcher.Constraint("Horizontal", 6),
    Sketcher.Constraint("Vertical", 7),
    Sketcher.Constraint("PointOnObject", 3, 2, -1),
    Sketcher.Constraint("Horizontal", 2, 2, 5, 2),
    Sketcher.Constraint("Equal", 2, 6),
    Sketcher.Constraint("Equal", 6, 1),
    Sketcher.Constraint("DistanceX", 0, 1, 0, 2, 10.0),
    Sketcher.Constraint("DistanceX", 4, 2, 4, 1, 9.0),
    Sketcher.Constraint("DistanceY", 3, 1, 3, 2, 1.5),
    Sketcher.Constraint("DistanceX", -1, 1, 2, 2, 55.0),
])
pocket4 = body.newObject("PartDesign::Pocket", "Pocket003")
pocket4.Profile = sketch12
pocket4.Length = 57

# Sketch on YZ plane
sketch13 = body.newObject("Sketcher::SketchObject", "Sketch012")
sketch13.AttachmentSupport = (doc.getObject("YZ_Plane"), [""])
sketch13.MapMode = "FlatFace"
sketch13.addGeometry([
    Part.LineSegment(V(-2, 113.5, 0), V(-1.5, 113.5, 0)),  # 0
    Part.LineSegment(V(-1.5, 113.5, 0), V(-1.5, 113, 0)),  # 1
    Part.LineSegment(V(-1.5, 113, 0), V(0, 113, 0)),  # 2
    Part.LineSegment(V(0, 113, 0), V(0, 104, 0)),  # 3
    Part.LineSegment(V(0, 104, 0), V(-1.5, 104, 0)),  # 4
    Part.LineSegment(V(-1.5, 104, 0), V(-1.5, 103.5, 0)),  # 5
    Part.LineSegment(V(-1.5, 103.5, 0), V(-2, 103.5, 0)),  # 6
    Part.LineSegment(V(-2, 103.5, 0), V(-2, 113.5, 0)),  # 7
], False)
sketch13.addConstraint([
    Sketcher.Constraint("Coincident", 0, 2, 1, 1),
    Sketcher.Constraint("Coincident", 1, 2, 2, 1),
    Sketcher.Constraint("Coincident", 2, 2, 3, 1),
    Sketcher.Constraint("Coincident", 3, 2, 4, 1),
    Sketcher.Constraint("Coincident", 4, 2, 5, 1),
    Sketcher.Constraint("Coincident", 5, 2, 6, 1),
    Sketcher.Constraint("Coincident", 6, 2, 7, 1),
    Sketcher.Constraint("Coincident", 7, 2, 0, 1),
    Sketcher.Constraint("Horizontal", 0),
    Sketcher.Constraint("Vertical", 1),
    Sketcher.Constraint("Horizontal", 2),
    Sketcher.Constraint("Vertical", 3),
    Sketcher.Constraint("Horizontal", 4),
    Sketcher.Constraint("Vertical", 5),
    Sketcher.Constraint("Horizontal", 6),
    Sketcher.Constraint("Vertical", 7),
    Sketcher.Constraint("PointOnObject", 2, 2, -2),
    Sketcher.Constraint("Vertical", 1, 2, 4, 2),
    Sketcher.Constraint("Equal", 6, 1),
    Sketcher.Constraint("DistanceY", 7, 1, 7, 2, 10.0),
    Sketcher.Constraint("DistanceX", 0, 1, 0, 2, 0.5),
    Sketcher.Constraint("DistanceX", 2, 1, 2, 2, 1.5),
    Sketcher.Constraint("DistanceY", -1, 1, 1, 2, 113.0),
    Sketcher.Constraint("DistanceY", 3, 2, 3, 1, 8.96),
])
pocket5 = body.newObject("PartDesign::Pocket", "Pocket004")
pocket5.Profile = sketch13
pocket5.Length = 32
pocket5.Reversed = True

# Sketch on YZ plane
sketch14 = body.newObject("Sketcher::SketchObject", "Sketch013")
sketch14.AttachmentSupport = (doc.getObject("YZ_Plane"), [""])
sketch14.MapMode = "FlatFace"
sketch14.AttachmentOffset = App.Placement(V(0, 0, 32), App.Rotation())
sketch14.addGeometry([
    Part.LineSegment(V(-1.5, 111, 0), V(0, 111, 0)),  # 0
    Part.LineSegment(V(0, 111, 0), V(0, 102, 0)),  # 1
    Part.LineSegment(V(0, 102, 0), V(-1.5, 102, 0)),  # 2
    Part.LineSegment(V(-1.5, 102, 0), V(-1.5, 101.5, 0)),  # 3
    Part.LineSegment(V(-1.5, 101.5, 0), V(-2, 101.5, 0)),  # 4
    Part.LineSegment(V(-2, 101.5, 0), V(-2, 111.5, 0)),  # 5
    Part.LineSegment(V(-2, 111.5, 0), V(-1.5, 111.5, 0)),  # 6
    Part.LineSegment(V(-1.5, 111.5, 0), V(-1.5, 111, 0)),  # 7
], False)
sketch14.addConstraint([
    Sketcher.Constraint("Coincident", 0, 2, 1, 1),
    Sketcher.Constraint("Coincident", 1, 2, 2, 1),
    Sketcher.Constraint("Coincident", 2, 2, 3, 1),
    Sketcher.Constraint("Coincident", 3, 2, 4, 1),
    Sketcher.Constraint("Coincident", 4, 2, 5, 1),
    Sketcher.Constraint("Coincident", 5, 2, 6, 1),
    Sketcher.Constraint("Coincident", 6, 2, 7, 1),
    Sketcher.Constraint("Coincident", 7, 2, 0, 1),
    Sketcher.Constraint("Horizontal", 0),
    Sketcher.Constraint("Vertical", 1),
    Sketcher.Constraint("Horizontal", 2),
    Sketcher.Constraint("Vertical", 3),
    Sketcher.Constraint("Horizontal", 4),
    Sketcher.Constraint("Vertical", 5),
    Sketcher.Constraint("Horizontal", 6),
    Sketcher.Constraint("Vertical", 7),
    Sketcher.Constraint("PointOnObject", 0, 2, -2),
    Sketcher.Constraint("Vertical", 3, 2, 6, 2),
    Sketcher.Constraint("Equal", 6, 3),
    Sketcher.Constraint("Equal", 3, 7),
    Sketcher.Constraint("DistanceY", 1, 2, 1, 1, 9.0),
    Sketcher.Constraint("DistanceY", 5, 1, 5, 2, 10.0),
    Sketcher.Constraint("DistanceX", 0, 1, 0, 2, 1.5),
    Sketcher.Constraint("DistanceY", -1, 1, 0, 2, 111.0),
])
pocket6 = body.newObject("PartDesign::Pocket", "Pocket005")
pocket6.Profile = sketch14
pocket6.Length = 17
pocket6.Reversed = True

# Sketch on YZ plane
sketch15 = body.newObject("Sketcher::SketchObject", "Sketch014")
sketch15.AttachmentSupport = (doc.getObject("YZ_Plane"), [""])
sketch15.MapMode = "FlatFace"
sketch15.AttachmentOffset = App.Placement(V(0, 0, 32), App.Rotation())
sketch15.addGeometry([
    Part.LineSegment(V(-1.5, 45, 0), V(0, 45, 0)),  # 0
    Part.LineSegment(V(0, 45, 0), V(0, 36, 0)),  # 1
    Part.LineSegment(V(0, 36, 0), V(-1.5, 36, 0)),  # 2
    Part.LineSegment(V(-1.5, 36, 0), V(-1.5, 35.5, 0)),  # 3
    Part.LineSegment(V(-1.5, 35.5, 0), V(-2, 35.5, 0)),  # 4
    Part.LineSegment(V(-2, 35.5, 0), V(-2, 45.5, 0)),  # 5
    Part.LineSegment(V(-2, 45.5, 0), V(-1.5, 45.5, 0)),  # 6
    Part.LineSegment(V(-1.5, 45.5, 0), V(-1.5, 45, 0)),  # 7
], False)
sketch15.addConstraint([
    Sketcher.Constraint("Coincident", 0, 2, 1, 1),
    Sketcher.Constraint("Coincident", 1, 2, 2, 1),
    Sketcher.Constraint("Coincident", 2, 2, 3, 1),
    Sketcher.Constraint("Coincident", 3, 2, 4, 1),
    Sketcher.Constraint("Coincident", 4, 2, 5, 1),
    Sketcher.Constraint("Coincident", 5, 2, 6, 1),
    Sketcher.Constraint("Coincident", 6, 2, 7, 1),
    Sketcher.Constraint("Coincident", 7, 2, 0, 1),
    Sketcher.Constraint("Horizontal", 0),
    Sketcher.Constraint("Vertical", 1),
    Sketcher.Constraint("Horizontal", 2),
    Sketcher.Constraint("Vertical", 3),
    Sketcher.Constraint("Horizontal", 4),
    Sketcher.Constraint("Vertical", 5),
    Sketcher.Constraint("Horizontal", 6),
    Sketcher.Constraint("Vertical", 7),
    Sketcher.Constraint("PointOnObject", 0, 2, -2),
    Sketcher.Constraint("Vertical", 3, 2, 6, 2),
    Sketcher.Constraint("Equal", 6, 3),
    Sketcher.Constraint("Equal", 3, 7),
    Sketcher.Constraint("DistanceY", 1, 2, 1, 1, 9.0),
    Sketcher.Constraint("DistanceY", 5, 1, 5, 2, 10.0),
    Sketcher.Constraint("DistanceX", 0, 1, 0, 2, 1.5),
    Sketcher.Constraint("DistanceY", -1, 1, 0, 2, 45.0),
])
pocket7 = body.newObject("PartDesign::Pocket", "Pocket006")
pocket7.Profile = sketch15
pocket7.Length = 17
pocket7.Reversed = True

# Sketch on YZ plane
sketch16 = body.newObject("Sketcher::SketchObject", "Sketch015")
sketch16.AttachmentSupport = (doc.getObject("YZ_Plane"), [""])
sketch16.MapMode = "FlatFace"
sketch16.addGeometry([
    Part.LineSegment(V(-1.5, 33.5, 0), V(-2, 33.5, 0)),  # 0
    Part.LineSegment(V(-2, 33.5, 0), V(-2, 43.5, 0)),  # 1
    Part.LineSegment(V(-2, 43.5, 0), V(-1.5, 43.5, 0)),  # 2
    Part.LineSegment(V(-1.5, 43.5, 0), V(-1.5, 43, 0)),  # 3
    Part.LineSegment(V(-1.5, 43, 0), V(0, 43, 0)),  # 4
    Part.LineSegment(V(0, 43, 0), V(0, 34, 0)),  # 5
    Part.LineSegment(V(0, 34, 0), V(-1.5, 34, 0)),  # 6
    Part.LineSegment(V(-1.5, 34, 0), V(-1.5, 33.5, 0)),  # 7
], False)
sketch16.addConstraint([
    Sketcher.Constraint("Coincident", 0, 2, 1, 1),
    Sketcher.Constraint("Coincident", 1, 2, 2, 1),
    Sketcher.Constraint("Coincident", 2, 2, 3, 1),
    Sketcher.Constraint("Coincident", 3, 2, 4, 1),
    Sketcher.Constraint("Coincident", 4, 2, 5, 1),
    Sketcher.Constraint("Coincident", 5, 2, 6, 1),
    Sketcher.Constraint("Coincident", 6, 2, 7, 1),
    Sketcher.Constraint("Coincident", 7, 2, 0, 1),
    Sketcher.Constraint("Horizontal", 0),
    Sketcher.Constraint("Vertical", 1),
    Sketcher.Constraint("Horizontal", 2),
    Sketcher.Constraint("Vertical", 3),
    Sketcher.Constraint("Horizontal", 4),
    Sketcher.Constraint("Vertical", 5),
    Sketcher.Constraint("Horizontal", 6),
    Sketcher.Constraint("Vertical", 7),
    Sketcher.Constraint("PointOnObject", 4, 2, -2),
    Sketcher.Constraint("Vertical", 3, 2, 6, 2),
    Sketcher.Constraint("Equal", 2, 3),
    Sketcher.Constraint("Equal", 3, 7),
    Sketcher.Constraint("DistanceY", 1, 1, 1, 2, 10.0),
    Sketcher.Constraint("DistanceY", 5, 2, 5, 1, 9.0),
    Sketcher.Constraint("DistanceX", 4, 1, 4, 2, 1.5),
    Sketcher.Constraint("DistanceY", -1, 1, 3, 2, 43.0),
])
pocket8 = body.newObject("PartDesign::Pocket", "Pocket007")
pocket8.Profile = sketch16
pocket8.Length = 32
pocket8.Reversed = True

doc.recompute()
